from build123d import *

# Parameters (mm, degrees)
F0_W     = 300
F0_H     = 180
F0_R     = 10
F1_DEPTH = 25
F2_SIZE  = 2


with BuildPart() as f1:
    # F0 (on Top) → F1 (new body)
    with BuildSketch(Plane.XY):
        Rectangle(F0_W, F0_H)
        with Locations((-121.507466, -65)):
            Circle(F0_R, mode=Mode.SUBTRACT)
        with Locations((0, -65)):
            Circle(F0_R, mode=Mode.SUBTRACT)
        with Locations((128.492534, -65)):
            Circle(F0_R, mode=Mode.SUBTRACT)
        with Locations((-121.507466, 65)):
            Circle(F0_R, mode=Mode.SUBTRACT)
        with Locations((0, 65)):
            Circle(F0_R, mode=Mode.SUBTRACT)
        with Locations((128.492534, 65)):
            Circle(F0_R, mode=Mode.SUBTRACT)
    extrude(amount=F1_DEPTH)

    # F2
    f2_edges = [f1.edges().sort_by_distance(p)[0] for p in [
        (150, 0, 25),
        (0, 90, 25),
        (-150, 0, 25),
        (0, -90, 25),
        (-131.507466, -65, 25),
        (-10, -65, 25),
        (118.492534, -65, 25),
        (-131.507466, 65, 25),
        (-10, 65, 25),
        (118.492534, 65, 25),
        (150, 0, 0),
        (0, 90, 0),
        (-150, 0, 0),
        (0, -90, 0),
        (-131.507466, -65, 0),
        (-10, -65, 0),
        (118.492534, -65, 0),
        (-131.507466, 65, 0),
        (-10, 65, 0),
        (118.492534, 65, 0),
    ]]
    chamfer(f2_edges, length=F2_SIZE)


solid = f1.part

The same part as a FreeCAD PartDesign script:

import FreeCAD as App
import Part
import Sketcher
from FreeCAD import Vector
Q = App.Units.Quantity


def edges_at(feature, points):
    """Names of the edges that pass closest to the given points."""
    edges = feature.Shape.Edges
    near = lambda p: min(range(len(edges)), key=lambda i: edges[i].distToShape(Part.Vertex(*p))[0])
    return sorted({f"Edge{near(p) + 1}" for p in points})

doc = App.newDocument("Part")
body = doc.addObject("PartDesign::Body", "Body")

sketch1 = body.newObject("Sketcher::SketchObject", "Sketch")
sketch1.AttachmentSupport = (doc.getObject("XY_Plane"), [""])
sketch1.MapMode = "FlatFace"
sketch1.addGeometry([
    Part.LineSegment(Vector(-150, 90, 0), Vector(-150, -90, 0)),
    Part.LineSegment(Vector(-150, -90, 0), Vector(150, -90, 0)),
    Part.LineSegment(Vector(150, -90, 0), Vector(150, 90, 0)),
    Part.LineSegment(Vector(150, 90, 0), Vector(-150, 90, 0)),
    Part.Circle(Vector(-122, -65, 0), Vector(0, 0, 1), 10),
    Part.Circle(Vector(0, -65, 0), Vector(0, 0, 1), 10),
    Part.Circle(Vector(128, -65, 0), Vector(0, 0, 1), 10),
    Part.Circle(Vector(-122, 65, 0), Vector(0, 0, 1), 10),
    Part.Circle(Vector(0, 65, 0), Vector(0, 0, 1), 10),
    Part.Circle(Vector(128, 65, 0), Vector(0, 0, 1), 10),
], False)
sketch1.addConstraint([
    Sketcher.Constraint("Coincident", 0, 2, 1, 1),
    Sketcher.Constraint("Coincident", 1, 2, 2, 1),
    Sketcher.Constraint("Coincident", 2, 2, 3, 1),
    Sketcher.Constraint("Coincident", 3, 2, 0, 1),
    Sketcher.Constraint("Vertical", 0),
    Sketcher.Constraint("Horizontal", 1),
    Sketcher.Constraint("Vertical", 2),
    Sketcher.Constraint("Horizontal", 3),
    Sketcher.Constraint("Equal", 4, 5),
    Sketcher.Constraint("Equal", 5, 6),
    Sketcher.Constraint("Equal", 6, 7),
    Sketcher.Constraint("Equal", 7, 8),
    Sketcher.Constraint("Equal", 8, 9),
    Sketcher.Constraint("Symmetric", 5, 3, 8, 3, -1, 1),
    Sketcher.Constraint("Symmetric", 0, 2, 2, 2, -1, 1),
    Sketcher.Constraint("Symmetric", 4, 3, 7, 3, -1),
    Sketcher.Constraint("Symmetric", 6, 3, 9, 3, -1),
    Sketcher.Constraint("PointOnObject", 5, 3, -2),
    Sketcher.Constraint("Horizontal", 4, 3, 5, 3),
    Sketcher.Constraint("Horizontal", 5, 3, 6, 3),
    Sketcher.Constraint("Diameter", 4, Q("20 mm")),
    Sketcher.Constraint("DistanceX", 1, 1, 1, 2, Q("300 mm")),
    Sketcher.Constraint("DistanceY", 0, 2, 0, 1, Q("180 mm")),
    Sketcher.Constraint("DistanceY", 4, 3, -1, 1, Q("65 mm")),
    Sketcher.Constraint("DistanceX", 4, 3, 6, 3, Q("250 mm")),
    Sketcher.Constraint("DistanceX", 4, 3, -1, 1, Q("121.507466 mm")),
])
pad1 = body.newObject("PartDesign::Pad", "Pad")
pad1.Profile = sketch1
pad1.Length = 25
doc.recompute()

chamfer = body.newObject("PartDesign::Chamfer", "Chamfer")
chamfer.Base = (pad1, edges_at(pad1, [
    (150, 0, 25),
    (0, 90, 25),
    (-150, 0, 25),
    (0, -90, 25),
    (-131.507, -65, 25),
    (-10, -65, 25),
    (118.493, -65, 25),
    (-131.507, 65, 25),
    (-10, 65, 25),
    (118.493, 65, 25),
    (150, 0, 0),
    (0, 90, 0),
    (-150, 0, 0),
    (0, -90, 0),
    (-131.507, -65, 0),
    (-10, -65, 0),
    (118.493, -65, 0),
    (-131.507, 65, 0),
    (-10, 65, 0),
    (118.493, 65, 0),
]))
chamfer.Size = 2

doc.recompute()
